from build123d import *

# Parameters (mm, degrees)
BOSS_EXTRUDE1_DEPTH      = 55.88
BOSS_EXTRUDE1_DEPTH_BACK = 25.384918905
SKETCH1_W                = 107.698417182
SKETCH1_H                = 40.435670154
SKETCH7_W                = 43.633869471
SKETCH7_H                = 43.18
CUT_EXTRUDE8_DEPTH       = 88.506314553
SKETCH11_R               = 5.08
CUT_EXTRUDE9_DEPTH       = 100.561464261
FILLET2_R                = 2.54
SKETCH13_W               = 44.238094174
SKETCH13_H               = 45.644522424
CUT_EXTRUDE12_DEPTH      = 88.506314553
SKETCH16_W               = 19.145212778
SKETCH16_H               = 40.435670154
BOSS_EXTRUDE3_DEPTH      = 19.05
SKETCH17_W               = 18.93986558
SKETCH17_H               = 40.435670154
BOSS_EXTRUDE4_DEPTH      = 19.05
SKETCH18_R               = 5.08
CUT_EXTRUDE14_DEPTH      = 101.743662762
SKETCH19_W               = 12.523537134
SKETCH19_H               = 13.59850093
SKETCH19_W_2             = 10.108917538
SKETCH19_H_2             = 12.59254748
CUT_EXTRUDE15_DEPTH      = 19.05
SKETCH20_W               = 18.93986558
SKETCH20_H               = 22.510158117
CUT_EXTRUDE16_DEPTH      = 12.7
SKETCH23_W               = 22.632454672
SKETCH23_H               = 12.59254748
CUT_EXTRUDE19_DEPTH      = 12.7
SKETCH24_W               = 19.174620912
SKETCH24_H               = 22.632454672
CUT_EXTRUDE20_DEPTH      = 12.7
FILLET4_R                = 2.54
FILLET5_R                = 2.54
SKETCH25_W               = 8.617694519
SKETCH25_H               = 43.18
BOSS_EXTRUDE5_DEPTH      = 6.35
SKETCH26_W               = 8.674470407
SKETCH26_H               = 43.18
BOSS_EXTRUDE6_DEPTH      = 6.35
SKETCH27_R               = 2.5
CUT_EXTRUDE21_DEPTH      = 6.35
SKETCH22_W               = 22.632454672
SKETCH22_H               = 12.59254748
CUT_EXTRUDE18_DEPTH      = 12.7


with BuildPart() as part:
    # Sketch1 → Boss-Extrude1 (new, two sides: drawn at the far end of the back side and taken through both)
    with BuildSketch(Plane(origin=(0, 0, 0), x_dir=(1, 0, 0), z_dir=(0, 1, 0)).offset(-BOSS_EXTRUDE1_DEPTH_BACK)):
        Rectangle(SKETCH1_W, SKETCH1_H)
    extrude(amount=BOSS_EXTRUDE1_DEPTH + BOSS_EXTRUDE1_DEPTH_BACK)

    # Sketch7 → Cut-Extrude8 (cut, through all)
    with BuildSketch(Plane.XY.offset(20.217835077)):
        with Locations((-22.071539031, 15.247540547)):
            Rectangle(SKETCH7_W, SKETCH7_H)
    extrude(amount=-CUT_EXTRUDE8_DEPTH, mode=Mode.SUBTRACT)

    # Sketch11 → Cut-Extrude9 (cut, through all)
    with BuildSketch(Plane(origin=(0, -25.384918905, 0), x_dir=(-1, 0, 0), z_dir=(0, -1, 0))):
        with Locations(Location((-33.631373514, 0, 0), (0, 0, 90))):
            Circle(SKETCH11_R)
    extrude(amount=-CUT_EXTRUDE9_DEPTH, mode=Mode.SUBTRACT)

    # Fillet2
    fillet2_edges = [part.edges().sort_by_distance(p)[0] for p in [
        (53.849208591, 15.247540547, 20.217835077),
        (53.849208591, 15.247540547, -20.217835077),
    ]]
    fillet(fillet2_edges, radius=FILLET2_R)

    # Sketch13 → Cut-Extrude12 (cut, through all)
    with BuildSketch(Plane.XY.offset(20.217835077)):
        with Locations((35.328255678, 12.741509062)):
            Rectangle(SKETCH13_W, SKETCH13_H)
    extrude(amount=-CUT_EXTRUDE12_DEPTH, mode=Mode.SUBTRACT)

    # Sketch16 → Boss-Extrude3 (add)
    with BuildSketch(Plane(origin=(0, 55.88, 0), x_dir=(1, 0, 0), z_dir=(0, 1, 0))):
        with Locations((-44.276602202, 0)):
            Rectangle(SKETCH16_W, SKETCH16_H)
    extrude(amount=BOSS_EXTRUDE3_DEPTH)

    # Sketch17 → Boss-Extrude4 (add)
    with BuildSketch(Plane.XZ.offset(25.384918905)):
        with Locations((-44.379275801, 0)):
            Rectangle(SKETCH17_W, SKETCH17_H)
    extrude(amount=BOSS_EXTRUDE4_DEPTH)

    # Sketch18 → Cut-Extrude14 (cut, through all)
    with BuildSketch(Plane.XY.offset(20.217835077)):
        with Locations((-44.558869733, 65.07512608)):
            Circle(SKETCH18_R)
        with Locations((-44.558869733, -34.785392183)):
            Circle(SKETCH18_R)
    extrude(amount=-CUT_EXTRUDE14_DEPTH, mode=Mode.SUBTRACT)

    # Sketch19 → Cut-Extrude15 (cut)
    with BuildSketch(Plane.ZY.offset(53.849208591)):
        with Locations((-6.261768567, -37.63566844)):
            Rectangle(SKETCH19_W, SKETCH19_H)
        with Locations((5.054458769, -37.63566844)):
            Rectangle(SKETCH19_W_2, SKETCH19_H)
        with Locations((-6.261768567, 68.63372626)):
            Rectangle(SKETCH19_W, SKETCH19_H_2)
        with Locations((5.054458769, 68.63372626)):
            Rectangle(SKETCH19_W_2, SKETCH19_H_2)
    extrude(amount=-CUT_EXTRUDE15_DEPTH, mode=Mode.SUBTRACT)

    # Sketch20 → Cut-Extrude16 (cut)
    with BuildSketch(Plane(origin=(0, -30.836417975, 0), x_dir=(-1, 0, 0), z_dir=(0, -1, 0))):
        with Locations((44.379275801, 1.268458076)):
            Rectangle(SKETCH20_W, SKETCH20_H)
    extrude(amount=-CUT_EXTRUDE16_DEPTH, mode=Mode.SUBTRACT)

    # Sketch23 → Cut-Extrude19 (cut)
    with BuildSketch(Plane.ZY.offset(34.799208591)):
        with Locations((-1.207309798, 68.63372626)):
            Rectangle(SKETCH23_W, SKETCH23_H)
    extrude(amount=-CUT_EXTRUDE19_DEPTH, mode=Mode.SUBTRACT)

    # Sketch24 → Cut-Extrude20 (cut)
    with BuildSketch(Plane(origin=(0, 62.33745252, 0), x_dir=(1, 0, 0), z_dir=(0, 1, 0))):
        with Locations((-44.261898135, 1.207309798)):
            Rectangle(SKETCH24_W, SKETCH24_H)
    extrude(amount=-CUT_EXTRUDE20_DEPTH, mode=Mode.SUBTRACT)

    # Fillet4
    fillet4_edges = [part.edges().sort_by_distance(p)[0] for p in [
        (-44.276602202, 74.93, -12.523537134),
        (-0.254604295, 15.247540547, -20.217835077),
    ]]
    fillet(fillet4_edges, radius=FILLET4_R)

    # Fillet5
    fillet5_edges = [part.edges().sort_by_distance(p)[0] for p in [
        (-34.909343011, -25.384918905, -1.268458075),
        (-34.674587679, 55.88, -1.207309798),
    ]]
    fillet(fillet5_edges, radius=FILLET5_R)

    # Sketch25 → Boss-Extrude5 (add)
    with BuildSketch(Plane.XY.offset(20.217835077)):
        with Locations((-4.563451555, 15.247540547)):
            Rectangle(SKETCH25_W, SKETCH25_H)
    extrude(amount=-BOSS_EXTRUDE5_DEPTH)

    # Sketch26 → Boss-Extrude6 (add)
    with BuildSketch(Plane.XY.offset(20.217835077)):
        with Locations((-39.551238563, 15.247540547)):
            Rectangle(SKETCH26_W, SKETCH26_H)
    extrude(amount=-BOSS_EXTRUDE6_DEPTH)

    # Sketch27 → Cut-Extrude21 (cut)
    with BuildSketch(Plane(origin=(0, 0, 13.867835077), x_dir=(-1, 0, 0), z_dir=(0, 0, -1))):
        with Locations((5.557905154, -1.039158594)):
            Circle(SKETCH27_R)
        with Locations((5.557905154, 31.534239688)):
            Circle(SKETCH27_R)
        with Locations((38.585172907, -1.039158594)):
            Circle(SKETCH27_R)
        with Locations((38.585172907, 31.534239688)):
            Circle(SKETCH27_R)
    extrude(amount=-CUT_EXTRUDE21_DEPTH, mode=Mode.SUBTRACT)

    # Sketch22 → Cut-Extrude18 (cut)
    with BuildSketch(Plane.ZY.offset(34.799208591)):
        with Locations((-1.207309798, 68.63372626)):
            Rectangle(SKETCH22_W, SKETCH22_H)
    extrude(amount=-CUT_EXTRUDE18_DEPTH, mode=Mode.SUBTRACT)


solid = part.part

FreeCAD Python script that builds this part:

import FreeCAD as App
import Part
import Sketcher

V = App.Vector
Q = App.Units.Quantity


def edges_at(feature, points):
    """Names of the edges that pass closest to the given points."""
    edges = feature.Shape.Edges
    near = lambda p: min(range(len(edges)), key=lambda i: edges[i].distToShape(Part.Vertex(*p))[0])
    return sorted({f"Edge{near(p) + 1}" for p in points})


def add_polygon(sketch, points):
    """Adds a closed chain of lines whose ends are joined by coincident constraints."""
    first, n = sketch.GeometryCount, len(points)
    for a, b in zip(points, points[1:] + points[:1]):
        sketch.addGeometry(Part.LineSegment(App.Vector(*a, 0), App.Vector(*b, 0)), False)
    for i in range(n):
        sketch.addConstraint(Sketcher.Constraint("Coincident", first + i, 2, first + (i + 1) % n, 1))

doc = App.newDocument("Part")
params = doc.addObject("Spreadsheet::Sheet", "Params")
for row, (alias, value) in enumerate([
    ("pad1_length", "2.2 in"),
    ("pad1_length2", "25.384919 mm"),
    ("sketch2_height", "1.7 in"),
    ("sketch3_diameter", "0.4 in"),
    ("fillet_radius", "0.1 in"),
    ("pad2_length", "0.75 in"),
    ("pad3_length", "0.75 in"),
    ("sketch7_diameter", "0.4 in"),
    ("pocket5_length", "0.75 in"),
    ("pocket6_length", "0.5 in"),
    ("pocket7_length", "0.5 in"),
    ("pocket8_length", "0.5 in"),
    ("fillet2_radius", "0.1 in"),
    ("fillet3_radius", "0.1 in"),
    ("sketch12_height", "1.7 in"),
    ("pad4_length", "0.25 in"),
    ("sketch13_height", "1.7 in"),
    ("pad5_length", "0.25 in"),
    ("pocket9_length", "0.25 in"),
    ("pocket10_length", "0.5 in"),
], start=1):
    params.set(f"A{row}", alias)
    params.set(f"B{row}", "=" + value)
    params.setAlias(f"B{row}", alias)

body = doc.addObject("PartDesign::Body", "Body")

# Sketch on XZ plane
sketch1 = doc.addObject("Sketcher::SketchObject", "Sketch")
body.addObject(sketch1)
sketch1.AttachmentSupport = (doc.XZ_Plane, [""])
sketch1.MapMode = "FlatFace"
add_polygon(sketch1, [(-54, -20), (-54, 20), (54, 20), (54, -20)])  # lines 0-3
sketch1.addConstraint(Sketcher.Constraint("Vertical", 0))
sketch1.addConstraint(Sketcher.Constraint("Horizontal", 1))
sketch1.addConstraint(Sketcher.Constraint("Vertical", 2))
sketch1.addConstraint(Sketcher.Constraint("Horizontal", 3))
sketch1.addConstraint(Sketcher.Constraint("Symmetric", 0, 2, 2, 2, -1, 1))
sketch1.addConstraint(Sketcher.Constraint("DistanceY", 0, 1, 0, 2, 40.43567))
sketch1.addConstraint(Sketcher.Constraint("DistanceX", 1, 1, 1, 2, 107.698417))
pad1 = doc.addObject("PartDesign::Pad", "Pad")
body.addObject(pad1)
pad1.Profile = sketch1
pad1.Type = "TwoLengths"
pad1.setExpression("Length", "Params.pad1_length")
pad1.setExpression("Length2", "Params.pad1_length2")
pad1.Reversed = True

# Sketch on XY plane
sketch2 = doc.addObject("Sketcher::SketchObject", "Sketch001")
body.addObject(sketch2)
sketch2.AttachmentSupport = (doc.XY_Plane, [""])
sketch2.MapMode = "FlatFace"
sketch2.AttachmentOffset = App.Placement(V(0, 0, 20.217835), App.Rotation())
add_polygon(sketch2, [(-44, 37), (-44, -6), (0, -6), (0, 37)])  # lines 0-3
sketch2.addConstraint(Sketcher.Constraint("Vertical", 0))
sketch2.addConstraint(Sketcher.Constraint("Horizontal", 1))
sketch2.addConstraint(Sketcher.Constraint("Vertical", 2))
sketch2.addConstraint(Sketcher.Constraint("Horizontal", 3))
sketch2.addConstraint(Sketcher.Constraint("DistanceY", 0, 2, 0, 1, Q("1.7 in")))
sketch2.addConstraint(Sketcher.Constraint("DistanceX", 1, 1, 1, 2, 43.633869))
sketch2.addConstraint(Sketcher.Constraint("DistanceY", 0, 2, -1, 1, 6.342459))
sketch2.addConstraint(Sketcher.Constraint("DistanceX", 0, 2, -1, 1, 43.888474))
sketch2.setExpression("Constraints[8]", "Params.sketch2_height")
pocket1 = doc.addObject("PartDesign::Pocket", "Pocket")
body.addObject(pocket1)
pocket1.Profile = sketch2
pocket1.Type = "ThroughAll"

# Sketch on XZ plane
sketch3 = doc.addObject("Sketcher::SketchObject", "Sketch002")
body.addObject(sketch3)
sketch3.AttachmentSupport = (doc.XZ_Plane, [""])
sketch3.MapMode = "FlatFace"
sketch3.AttachmentOffset = App.Placement(V(0, 0, 25.384919), App.Rotation())
sketch3.addGeometry(Part.Circle(V(34, 0, 0), V(0, 0, 1), 5), False)
sketch3.addConstraint(Sketcher.Constraint("PointOnObject", 0, 3, -1))
sketch3.addConstraint(Sketcher.Constraint("Diameter", 0, Q("0.4 in")))
sketch3.addConstraint(Sketcher.Constraint("DistanceX", -1, 1, 0, 3, 33.631374))
sketch3.setExpression("Constraints[1]", "Params.sketch3_diameter")
pocket2 = doc.addObject("PartDesign::Pocket", "Pocket001")
body.addObject(pocket2)
pocket2.Profile = sketch3
pocket2.Type = "ThroughAll"
doc.recompute()

fillet = doc.addObject("PartDesign::Fillet", "Fillet")
body.addObject(fillet)
fillet.Base = (pocket2, edges_at(pocket2, [(53.849, 15.248, 20.218), (53.849, 15.248, -20.218)]))
fillet.setExpression("Radius", "Params.fillet_radius")

# Sketch on XY plane
sketch4 = doc.addObject("Sketcher::SketchObject", "Sketch003")
body.addObject(sketch4)
sketch4.AttachmentSupport = (doc.XY_Plane, [""])
sketch4.MapMode = "FlatFace"
sketch4.AttachmentOffset = App.Placement(V(0, 0, 20.217835), App.Rotation())
add_polygon(sketch4, [(13, 36), (13, -10), (57, -10), (57, 36)])  # lines 0-3
sketch4.addConstraint(Sketcher.Constraint("Vertical", 0))
sketch4.addConstraint(Sketcher.Constraint("Horizontal", 1))
sketch4.addConstraint(Sketcher.Constraint("Vertical", 2))
sketch4.addConstraint(Sketcher.Constraint("Horizontal", 3))
sketch4.addConstraint(Sketcher.Constraint("DistanceX", 1, 1, 1, 2, 44.238094))
sketch4.addConstraint(Sketcher.Constraint("DistanceY", 0, 2, 0, 1, 45.644522))
sketch4.addConstraint(Sketcher.Constraint("DistanceX", -1, 1, 0, 2, 13.209209))
sketch4.addConstraint(Sketcher.Constraint("DistanceY", -1, 1, 2, 2, 35.56377))
pocket3 = doc.addObject("PartDesign::Pocket", "Pocket002")
body.addObject(pocket3)
pocket3.Profile = sketch4
pocket3.Type = "ThroughAll"

# Sketch on XZ plane
sketch5 = doc.addObject("Sketcher::SketchObject", "Sketch004")
body.addObject(sketch5)
sketch5.AttachmentSupport = (doc.XZ_Plane, [""])
sketch5.MapMode = "FlatFace"
sketch5.AttachmentOffset = App.Placement(V(0, 0, -2.2 * 25.4), App.Rotation())
add_polygon(sketch5, [(-54, -20), (-54, 20), (-35, 20), (-35, -20)])  # lines 0-3
sketch5.addConstraint(Sketcher.Constraint("Vertical", 0))
sketch5.addConstraint(Sketcher.Constraint("Horizontal", 1))
sketch5.addConstraint(Sketcher.Constraint("Vertical", 2))
sketch5.addConstraint(Sketcher.Constraint("Horizontal", 3))
sketch5.addConstraint(Sketcher.Constraint("DistanceY", 0, 1, 0, 2, 40.43567))
sketch5.addConstraint(Sketcher.Constraint("DistanceX", 1, 1, 1, 2, 19.145213))
sketch5.addConstraint(Sketcher.Constraint("DistanceX", 0, 2, -1, 1, 53.849209))
sketch5.addConstraint(Sketcher.Constraint("DistanceY", -1, 1, 0, 2, 20.217835))
pad2 = doc.addObject("PartDesign::Pad", "Pad001")
body.addObject(pad2)
pad2.Profile = sketch5
pad2.setExpression("Length", "Params.pad2_length")
pad2.Reversed = True

# Sketch on XZ plane
sketch6 = doc.addObject("Sketcher::SketchObject", "Sketch005")
body.addObject(sketch6)
sketch6.AttachmentSupport = (doc.XZ_Plane, [""])
sketch6.MapMode = "FlatFace"
sketch6.AttachmentOffset = App.Placement(V(0, 0, 25.384919), App.Rotation())
add_polygon(sketch6, [(-54, 20), (-54, -20), (-35, -20), (-35, 20)])  # lines 0-3
sketch6.addConstraint(Sketcher.Constraint("Vertical", 0))
sketch6.addConstraint(Sketcher.Constraint("Horizontal", 1))
sketch6.addConstraint(Sketcher.Constraint("Vertical", 2))
sketch6.addConstraint(Sketcher.Constraint("Horizontal", 3))
sketch6.addConstraint(Sketcher.Constraint("DistanceY", 0, 2, 0, 1, 40.43567))
sketch6.addConstraint(Sketcher.Constraint("DistanceX", 1, 1, 1, 2, 18.939866))
sketch6.addConstraint(Sketcher.Constraint("DistanceX", 0, 2, -1, 1, 53.849209))
sketch6.addConstraint(Sketcher.Constraint("DistanceY", 0, 2, -1, 1, 20.217835))
pad3 = doc.addObject("PartDesign::Pad", "Pad002")
body.addObject(pad3)
pad3.Profile = sketch6
pad3.setExpression("Length", "Params.pad3_length")

# Sketch on XY plane
sketch7 = doc.addObject("Sketcher::SketchObject", "Sketch006")
body.addObject(sketch7)
sketch7.AttachmentSupport = (doc.XY_Plane, [""])
sketch7.MapMode = "FlatFace"
sketch7.AttachmentOffset = App.Placement(V(0, 0, 20.217835), App.Rotation())
sketch7.addGeometry(Part.Circle(V(-45, 65, 0), V(0, 0, 1), 5), False)
sketch7.addGeometry(Part.Circle(V(-45, -35, 0), V(0, 0, 1), 5), False)
sketch7.addConstraint(Sketcher.Constraint("Equal", 0, 1))
sketch7.addConstraint(Sketcher.Constraint("Vertical", 0, 3, 1, 3))
sketch7.addConstraint(Sketcher.Constraint("Diameter", 0, Q("0.4 in")))
sketch7.addConstraint(Sketcher.Constraint("DistanceX", 0, 3, -1, 1, 44.55887))
sketch7.addConstraint(Sketcher.Constraint("DistanceY", 1, 3, 0, 3, 99.860518))
sketch7.addConstraint(Sketcher.Constraint("DistanceY", -1, 1, 0, 3, 65.075126))
sketch7.setExpression("Constraints[2]", "Params.sketch7_diameter")
pocket4 = doc.addObject("PartDesign::Pocket", "Pocket003")
body.addObject(pocket4)
pocket4.Profile = sketch7
pocket4.Type = "ThroughAll"

# Sketch on YZ plane
sketch8 = doc.addObject("Sketcher::SketchObject", "Sketch007")
body.addObject(sketch8)
sketch8.AttachmentSupport = (doc.YZ_Plane, [""])
sketch8.MapMode = "FlatFace"
sketch8.AttachmentOffset = App.Placement(V(0, 0, -53.849209), App.Rotation())
add_polygon(sketch8, [(-31, -13), (-44, -13), (-44, 10), (-31, 10)])  # lines 0-3
add_polygon(sketch8, [(75, -13), (62, -13), (62, 10), (75, 10)])  # lines 4-7
sketch8.addConstraint(Sketcher.Constraint("Horizontal", 0))
sketch8.addConstraint(Sketcher.Constraint("Vertical", 1))
sketch8.addConstraint(Sketcher.Constraint("Horizontal", 2))
sketch8.addConstraint(Sketcher.Constraint("Vertical", 3))
sketch8.addConstraint(Sketcher.Constraint("Horizontal", 4))
sketch8.addConstraint(Sketcher.Constraint("Vertical", 5))
sketch8.addConstraint(Sketcher.Constraint("Horizontal", 6))
sketch8.addConstraint(Sketcher.Constraint("Vertical", 7))
sketch8.addConstraint(Sketcher.Constraint("Horizontal", 3, 2, 4, 2))
sketch8.addConstraint(Sketcher.Constraint("Horizontal", 2, 2, 5, 2))
sketch8.addConstraint(Sketcher.Constraint("DistanceX", -1, 1, 6, 2, Q("2.95 in")))
sketch8.addConstraint(Sketcher.Constraint("DistanceX", 0, 2, 0, 1, 13.598501))
sketch8.addConstraint(Sketcher.Constraint("DistanceX", 4, 2, 4, 1, 12.592547))
sketch8.addConstraint(Sketcher.Constraint("DistanceY", 1, 1, 1, 2, 22.632455))
sketch8.addConstraint(Sketcher.Constraint("DistanceX", 0, 2, -1, 1, 44.434919))
sketch8.addConstraint(Sketcher.Constraint("DistanceY", 0, 2, -1, 1, 12.523537))
pocket5 = doc.addObject("PartDesign::Pocket", "Pocket004")
body.addObject(pocket5)
pocket5.Profile = sketch8
pocket5.setExpression("Length", "Params.pocket5_length")
pocket5.Reversed = True

# Sketch on XZ plane
sketch9 = doc.addObject("Sketcher::SketchObject", "Sketch008")
body.addObject(sketch9)
sketch9.AttachmentSupport = (doc.XZ_Plane, [""])
sketch9.MapMode = "FlatFace"
sketch9.AttachmentOffset = App.Placement(V(0, 0, 30.836418), App.Rotation())
add_polygon(sketch9, [(-35, -13), (-35, 10), (-54, 10), (-54, -13)])  # lines 0-3
sketch9.addConstraint(Sketcher.Constraint("Vertical", 0))
sketch9.addConstraint(Sketcher.Constraint("Horizontal", 1))
sketch9.addConstraint(Sketcher.Constraint("Vertical", 2))
sketch9.addConstraint(Sketcher.Constraint("Horizontal", 3))
sketch9.addConstraint(Sketcher.Constraint("DistanceY", 0, 1, 0, 2, 22.510158))
sketch9.addConstraint(Sketcher.Constraint("DistanceX", 1, 2, 1, 1, 18.939866))
sketch9.addConstraint(Sketcher.Constraint("DistanceY", -1, 1, 0, 2, 9.986621))
sketch9.addConstraint(Sketcher.Constraint("DistanceX", 1, 2, -1, 1, 53.849209))
pocket6 = doc.addObject("PartDesign::Pocket", "Pocket005")
body.addObject(pocket6)
pocket6.Profile = sketch9
pocket6.setExpression("Length", "Params.pocket6_length")

# Sketch on YZ plane
sketch10 = doc.addObject("Sketcher::SketchObject", "Sketch009")
body.addObject(sketch10)
sketch10.AttachmentSupport = (doc.YZ_Plane, [""])
sketch10.MapMode = "FlatFace"
sketch10.AttachmentOffset = App.Placement(V(0, 0, -34.799209), App.Rotation())
add_polygon(sketch10, [(75, -13), (62, -13), (62, 10), (75, 10)])  # lines 0-3
sketch10.addConstraint(Sketcher.Constraint("Horizontal", 0))
sketch10.addConstraint(Sketcher.Constraint("Vertical", 1))
sketch10.addConstraint(Sketcher.Constraint("Horizontal", 2))
sketch10.addConstraint(Sketcher.Constraint("Vertical", 3))
sketch10.addConstraint(Sketcher.Constraint("DistanceX", -1, 1, 2, 2, Q("2.95 in")))
sketch10.addConstraint(Sketcher.Constraint("DistanceX", 0, 2, 0, 1, 12.592547))
sketch10.addConstraint(Sketcher.Constraint("DistanceY", 1, 1, 1, 2, 22.632455))
sketch10.addConstraint(Sketcher.Constraint("DistanceY", 0, 2, -1, 1, 12.523537))
pocket7 = doc.addObject("PartDesign::Pocket", "Pocket006")
body.addObject(pocket7)
pocket7.Profile = sketch10
pocket7.setExpression("Length", "Params.pocket7_length")
pocket7.Reversed = True

# Sketch on XZ plane
sketch11 = doc.addObject("Sketcher::SketchObject", "Sketch010")
body.addObject(sketch11)
sketch11.AttachmentSupport = (doc.XZ_Plane, [""])
sketch11.MapMode = "FlatFace"
sketch11.AttachmentOffset = App.Placement(V(0, 0, -62.337453), App.Rotation())
add_polygon(sketch11, [(-54, -13), (-54, 10), (-35, 10), (-35, -13)])  # lines 0-3
sketch11.addConstraint(Sketcher.Constraint("Vertical", 0))
sketch11.addConstraint(Sketcher.Constraint("Horizontal", 1))
sketch11.addConstraint(Sketcher.Constraint("Vertical", 2))
sketch11.addConstraint(Sketcher.Constraint("Horizontal", 3))
sketch11.addConstraint(Sketcher.Constraint("DistanceX", 1, 1, 1, 2, 19.174621))
sketch11.addConstraint(Sketcher.Constraint("DistanceY", 0, 1, 0, 2, 22.632455))
sketch11.addConstraint(Sketcher.Constraint("DistanceX", 0, 2, -1, 1, 53.849209))
sketch11.addConstraint(Sketcher.Constraint("DistanceY", -1, 1, 0, 2, 10.108918))
pocket8 = doc.addObject("PartDesign::Pocket", "Pocket007")
body.addObject(pocket8)
pocket8.Profile = sketch11
pocket8.setExpression("Length", "Params.pocket8_length")
pocket8.Reversed = True
doc.recompute()

fillet2 = doc.addObject("PartDesign::Fillet", "Fillet001")
body.addObject(fillet2)
fillet2.Base = (pocket8, edges_at(pocket8, [(-44.277, 74.93, -12.524), (-0.255, 15.248, -20.218)]))
fillet2.setExpression("Radius", "Params.fillet2_radius")
doc.recompute()

fillet3 = doc.addObject("PartDesign::Fillet", "Fillet002")
body.addObject(fillet3)
fillet3.Base = (fillet2, edges_at(fillet2, [(-34.909, -25.385, -1.268), (-34.675, 55.88, -1.207)]))
fillet3.setExpression("Radius", "Params.fillet3_radius")

# Sketch on XY plane
sketch12 = doc.addObject("Sketcher::SketchObject", "Sketch011")
body.addObject(sketch12)
sketch12.AttachmentSupport = (doc.XY_Plane, [""])
sketch12.MapMode = "FlatFace"
sketch12.AttachmentOffset = App.Placement(V(0, 0, 20.217835), App.Rotation())
add_polygon(sketch12, [(-9, 37), (-9, -6), (0, -6), (0, 37)])  # lines 0-3
sketch12.addConstraint(Sketcher.Constraint("Vertical", 0))
sketch12.addConstraint(Sketcher.Constraint("Horizontal", 1))
sketch12.addConstraint(Sketcher.Constraint("Vertical", 2))
sketch12.addConstraint(Sketcher.Constraint("Horizontal", 3))
sketch12.addConstraint(Sketcher.Constraint("DistanceY", 0, 2, 0, 1, Q("1.7 in")))
sketch12.addConstraint(Sketcher.Constraint("DistanceX", 0, 2, -1, 1, 8.872299))
sketch12.addConstraint(Sketcher.Constraint("DistanceX", 1, 1, 1, 2, 8.617695))
sketch12.addConstraint(Sketcher.Constraint("DistanceY", 0, 2, -1, 1, 6.342459))
sketch12.setExpression("Constraints[8]", "Params.sketch12_height")
pad4 = doc.addObject("PartDesign::Pad", "Pad003")
body.addObject(pad4)
pad4.Profile = sketch12
pad4.setExpression("Length", "Params.pad4_length")
pad4.Reversed = True

# Sketch on XY plane
sketch13 = doc.addObject("Sketcher::SketchObject", "Sketch012")
body.addObject(sketch13)
sketch13.AttachmentSupport = (doc.XY_Plane, [""])
sketch13.MapMode = "FlatFace"
sketch13.AttachmentOffset = App.Placement(V(0, 0, 20.217835), App.Rotation())
add_polygon(sketch13, [(-44, 37), (-44, -6), (-35, -6), (-35, 37)])  # lines 0-3
sketch13.addConstraint(Sketcher.Constraint("Vertical", 0))
sketch13.addConstraint(Sketcher.Constraint("Horizontal", 1))
sketch13.addConstraint(Sketcher.Constraint("Vertical", 2))
sketch13.addConstraint(Sketcher.Constraint("Horizontal", 3))
sketch13.addConstraint(Sketcher.Constraint("DistanceY", 0, 2, 0, 1, Q("1.7 in")))
sketch13.addConstraint(Sketcher.Constraint("DistanceX", 1, 1, 1, 2, 8.67447))
sketch13.addConstraint(Sketcher.Constraint("DistanceY", 0, 2, -1, 1, 6.342459))
sketch13.addConstraint(Sketcher.Constraint("DistanceX", 0, 2, -1, 1, 43.888474))
sketch13.setExpression("Constraints[8]", "Params.sketch13_height")
pad5 = doc.addObject("PartDesign::Pad", "Pad004")
body.addObject(pad5)
pad5.Profile = sketch13
pad5.setExpression("Length", "Params.pad5_length")
pad5.Reversed = True

# Sketch on XY plane
sketch14 = doc.addObject("Sketcher::SketchObject", "Sketch013")
body.addObject(sketch14)
sketch14.AttachmentSupport = (doc.XY_Plane, [""])
sketch14.MapMode = "FlatFace"
sketch14.AttachmentOffset = App.Placement(V(0, 0, 13.867835), App.Rotation())
sketch14.addGeometry(Part.Circle(V(-5.6, -1, 0), V(0, 0, 1), 2.5), False)
sketch14.addGeometry(Part.Circle(V(-5.6, 31.5, 0), V(0, 0, 1), 2.5), False)
sketch14.addGeometry(Part.Circle(V(-38.6, -1, 0), V(0, 0, 1), 2.5), False)
sketch14.addGeometry(Part.Circle(V(-38.6, 31.5, 0), V(0, 0, 1), 2.5), False)
sketch14.addConstraint(Sketcher.Constraint("Equal", 0, 1))
sketch14.addConstraint(Sketcher.Constraint("Equal", 1, 2))
sketch14.addConstraint(Sketcher.Constraint("Equal", 2, 3))
sketch14.addConstraint(Sketcher.Constraint("Horizontal", 0, 3, 2, 3))
sketch14.addConstraint(Sketcher.Constraint("Horizontal", 1, 3, 3, 3))
sketch14.addConstraint(Sketcher.Constraint("Vertical", 0, 3, 1, 3))
sketch14.addConstraint(Sketcher.Constraint("Vertical", 2, 3, 3, 3))
sketch14.addConstraint(Sketcher.Constraint("Diameter", 0, 5.0))
sketch14.addConstraint(Sketcher.Constraint("DistanceY", 0, 3, 1, 3, 32.573398))
sketch14.addConstraint(Sketcher.Constraint("DistanceY", 0, 3, -1, 1, 1.039159))
sketch14.addConstraint(Sketcher.Constraint("DistanceX", 0, 3, -1, 1, 5.557905))
sketch14.addConstraint(Sketcher.Constraint("DistanceX", 2, 3, -1, 1, 38.585173))
pocket9 = doc.addObject("PartDesign::Pocket", "Pocket008")
body.addObject(pocket9)
pocket9.Profile = sketch14
pocket9.setExpression("Length", "Params.pocket9_length")
pocket9.Reversed = True

# Sketch on YZ plane
sketch15 = doc.addObject("Sketcher::SketchObject", "Sketch014")
body.addObject(sketch15)
sketch15.AttachmentSupport = (doc.YZ_Plane, [""])
sketch15.MapMode = "FlatFace"
sketch15.AttachmentOffset = App.Placement(V(0, 0, -34.799209), App.Rotation())
add_polygon(sketch15, [(75, -13), (62, -13), (62, 10), (75, 10)])  # lines 0-3
sketch15.addConstraint(Sketcher.Constraint("Horizontal", 0))
sketch15.addConstraint(Sketcher.Constraint("Vertical", 1))
sketch15.addConstraint(Sketcher.Constraint("Horizontal", 2))
sketch15.addConstraint(Sketcher.Constraint("Vertical", 3))
sketch15.addConstraint(Sketcher.Constraint("DistanceX", -1, 1, 2, 2, Q("2.95 in")))
sketch15.addConstraint(Sketcher.Constraint("DistanceX", 0, 2, 0, 1, 12.592547))
sketch15.addConstraint(Sketcher.Constraint("DistanceY", 1, 1, 1, 2, 22.632455))
sketch15.addConstraint(Sketcher.Constraint("DistanceY", 0, 2, -1, 1, 12.523537))
pocket10 = doc.addObject("PartDesign::Pocket", "Pocket009")
body.addObject(pocket10)
pocket10.Profile = sketch15
pocket10.setExpression("Length", "Params.pocket10_length")
pocket10.Reversed = True

doc.recompute()
